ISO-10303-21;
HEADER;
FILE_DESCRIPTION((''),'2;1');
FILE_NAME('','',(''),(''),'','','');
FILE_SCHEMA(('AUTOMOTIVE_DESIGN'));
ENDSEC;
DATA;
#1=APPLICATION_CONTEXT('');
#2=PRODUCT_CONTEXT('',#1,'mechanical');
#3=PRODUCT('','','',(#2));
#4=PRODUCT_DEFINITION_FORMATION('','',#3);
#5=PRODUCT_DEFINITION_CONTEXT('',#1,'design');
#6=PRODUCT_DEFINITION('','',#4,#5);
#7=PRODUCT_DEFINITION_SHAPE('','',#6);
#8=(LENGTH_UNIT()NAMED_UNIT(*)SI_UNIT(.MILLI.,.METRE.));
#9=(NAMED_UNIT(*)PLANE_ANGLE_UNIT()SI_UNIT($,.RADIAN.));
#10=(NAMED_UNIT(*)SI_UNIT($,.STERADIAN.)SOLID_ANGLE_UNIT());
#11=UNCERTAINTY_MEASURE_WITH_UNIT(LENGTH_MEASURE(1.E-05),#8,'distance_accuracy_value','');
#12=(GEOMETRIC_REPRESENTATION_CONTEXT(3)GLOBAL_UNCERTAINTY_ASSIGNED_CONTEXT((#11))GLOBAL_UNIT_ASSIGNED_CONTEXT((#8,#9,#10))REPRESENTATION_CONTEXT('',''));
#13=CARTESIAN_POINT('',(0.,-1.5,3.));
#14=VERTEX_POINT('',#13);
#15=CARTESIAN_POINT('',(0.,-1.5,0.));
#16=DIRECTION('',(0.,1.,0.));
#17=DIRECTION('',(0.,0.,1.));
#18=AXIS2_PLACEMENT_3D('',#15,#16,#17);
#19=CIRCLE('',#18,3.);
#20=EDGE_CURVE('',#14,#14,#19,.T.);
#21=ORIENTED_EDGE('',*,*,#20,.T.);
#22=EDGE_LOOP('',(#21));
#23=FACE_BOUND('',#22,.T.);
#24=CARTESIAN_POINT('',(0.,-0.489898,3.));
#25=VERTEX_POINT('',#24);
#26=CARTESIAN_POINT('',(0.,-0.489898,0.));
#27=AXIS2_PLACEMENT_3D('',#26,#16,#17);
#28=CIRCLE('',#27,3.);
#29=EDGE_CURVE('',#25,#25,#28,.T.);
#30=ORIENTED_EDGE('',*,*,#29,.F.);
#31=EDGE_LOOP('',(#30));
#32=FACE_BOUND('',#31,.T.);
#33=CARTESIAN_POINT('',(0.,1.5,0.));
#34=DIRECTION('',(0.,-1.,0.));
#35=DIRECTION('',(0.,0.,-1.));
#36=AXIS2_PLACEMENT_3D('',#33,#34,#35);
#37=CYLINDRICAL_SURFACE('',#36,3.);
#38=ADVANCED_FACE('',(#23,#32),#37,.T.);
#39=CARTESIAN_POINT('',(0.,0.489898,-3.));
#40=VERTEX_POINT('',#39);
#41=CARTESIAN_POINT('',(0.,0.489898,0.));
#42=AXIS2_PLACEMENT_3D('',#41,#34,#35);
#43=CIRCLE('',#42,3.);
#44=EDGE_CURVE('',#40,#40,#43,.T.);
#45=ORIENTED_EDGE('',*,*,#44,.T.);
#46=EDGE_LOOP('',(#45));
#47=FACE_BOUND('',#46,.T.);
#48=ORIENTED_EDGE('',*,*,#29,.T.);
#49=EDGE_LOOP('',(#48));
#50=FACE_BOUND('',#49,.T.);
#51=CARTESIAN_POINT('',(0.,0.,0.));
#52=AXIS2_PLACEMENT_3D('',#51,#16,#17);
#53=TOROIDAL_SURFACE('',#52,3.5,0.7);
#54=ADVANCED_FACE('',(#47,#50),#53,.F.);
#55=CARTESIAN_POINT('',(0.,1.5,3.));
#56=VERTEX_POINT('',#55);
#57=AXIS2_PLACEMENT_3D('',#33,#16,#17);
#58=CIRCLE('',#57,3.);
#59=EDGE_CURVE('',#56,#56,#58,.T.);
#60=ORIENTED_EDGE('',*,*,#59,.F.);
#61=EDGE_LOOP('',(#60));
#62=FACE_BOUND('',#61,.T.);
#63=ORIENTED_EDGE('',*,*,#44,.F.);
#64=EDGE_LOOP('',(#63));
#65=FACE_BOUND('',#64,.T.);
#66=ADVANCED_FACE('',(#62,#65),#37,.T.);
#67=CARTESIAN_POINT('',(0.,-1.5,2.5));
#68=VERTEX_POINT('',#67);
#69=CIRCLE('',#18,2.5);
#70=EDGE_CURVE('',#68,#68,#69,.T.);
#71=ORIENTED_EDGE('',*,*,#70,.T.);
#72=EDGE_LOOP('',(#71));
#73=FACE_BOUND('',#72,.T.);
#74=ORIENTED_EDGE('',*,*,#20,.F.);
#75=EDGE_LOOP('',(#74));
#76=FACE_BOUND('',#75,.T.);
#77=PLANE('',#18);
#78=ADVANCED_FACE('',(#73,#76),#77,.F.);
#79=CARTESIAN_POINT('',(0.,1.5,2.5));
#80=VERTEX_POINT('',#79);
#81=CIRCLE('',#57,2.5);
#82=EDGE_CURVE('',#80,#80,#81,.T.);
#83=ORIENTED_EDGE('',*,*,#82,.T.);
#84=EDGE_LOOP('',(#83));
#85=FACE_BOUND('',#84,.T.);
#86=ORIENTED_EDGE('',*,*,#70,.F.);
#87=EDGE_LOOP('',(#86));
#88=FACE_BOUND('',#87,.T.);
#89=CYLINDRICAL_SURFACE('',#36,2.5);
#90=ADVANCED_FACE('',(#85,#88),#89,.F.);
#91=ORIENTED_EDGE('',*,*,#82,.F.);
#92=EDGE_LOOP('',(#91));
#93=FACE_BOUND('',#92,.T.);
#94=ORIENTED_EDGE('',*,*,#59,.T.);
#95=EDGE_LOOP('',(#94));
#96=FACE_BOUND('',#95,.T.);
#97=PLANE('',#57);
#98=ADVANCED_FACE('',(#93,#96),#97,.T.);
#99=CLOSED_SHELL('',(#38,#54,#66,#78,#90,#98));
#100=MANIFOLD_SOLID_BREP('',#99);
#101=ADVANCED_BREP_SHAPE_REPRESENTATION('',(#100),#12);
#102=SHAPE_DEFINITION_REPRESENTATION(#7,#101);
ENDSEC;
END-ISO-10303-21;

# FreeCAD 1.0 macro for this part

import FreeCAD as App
import Part
import Sketcher

doc = App.newDocument("Part")
body = doc.addObject("PartDesign::Body", "Body")

sketch1 = body.newObject("Sketcher::SketchObject", "Sketch")
sketch1.AttachmentSupport = (doc.getObject("XZ_Plane"), [""])
sketch1.MapMode = "FlatFace"
sketch1.addGeometry(Part.Circle(App.Vector(0, 0, 0), App.Vector(0, 0, 1), 3), False)
sketch1.addGeometry(Part.Circle(App.Vector(0, 0, 0), App.Vector(0, 0, 1), 2.5), False)
sketch1.addConstraint(Sketcher.Constraint("Coincident", 0, 3, -1, 1))
sketch1.addConstraint(Sketcher.Constraint("Coincident", 1, 3, -1, 1))
sketch1.addConstraint(Sketcher.Constraint("Diameter", 0, 6.0))
sketch1.addConstraint(Sketcher.Constraint("Diameter", 1, 5.0))
pad1 = body.newObject("PartDesign::Pad", "Pad")
pad1.Profile = sketch1
pad1.Length = 3
pad1.Midplane = True

sketch2 = body.newObject("Sketcher::SketchObject", "Sketch001")
sketch2.AttachmentSupport = (doc.getObject("XY_Plane"), [""])
sketch2.MapMode = "FlatFace"
sketch2.addGeometry(Part.Circle(App.Vector(3.5, 0, 0), App.Vector(0, 0, 1), 0.7), False)
sketch2.addConstraint(Sketcher.Constraint("PointOnObject", 0, 3, -1))
sketch2.addConstraint(Sketcher.Constraint("Diameter", 0, 1.4))
sketch2.addConstraint(Sketcher.Constraint("DistanceX", -1, 1, 0, 3, 3.5))
groove = body.newObject("PartDesign::Groove", "Groove")
groove.Profile = sketch2
groove.ReferenceAxis = (sketch2, ["V_Axis"])
groove.Angle = 360

doc.recompute()
